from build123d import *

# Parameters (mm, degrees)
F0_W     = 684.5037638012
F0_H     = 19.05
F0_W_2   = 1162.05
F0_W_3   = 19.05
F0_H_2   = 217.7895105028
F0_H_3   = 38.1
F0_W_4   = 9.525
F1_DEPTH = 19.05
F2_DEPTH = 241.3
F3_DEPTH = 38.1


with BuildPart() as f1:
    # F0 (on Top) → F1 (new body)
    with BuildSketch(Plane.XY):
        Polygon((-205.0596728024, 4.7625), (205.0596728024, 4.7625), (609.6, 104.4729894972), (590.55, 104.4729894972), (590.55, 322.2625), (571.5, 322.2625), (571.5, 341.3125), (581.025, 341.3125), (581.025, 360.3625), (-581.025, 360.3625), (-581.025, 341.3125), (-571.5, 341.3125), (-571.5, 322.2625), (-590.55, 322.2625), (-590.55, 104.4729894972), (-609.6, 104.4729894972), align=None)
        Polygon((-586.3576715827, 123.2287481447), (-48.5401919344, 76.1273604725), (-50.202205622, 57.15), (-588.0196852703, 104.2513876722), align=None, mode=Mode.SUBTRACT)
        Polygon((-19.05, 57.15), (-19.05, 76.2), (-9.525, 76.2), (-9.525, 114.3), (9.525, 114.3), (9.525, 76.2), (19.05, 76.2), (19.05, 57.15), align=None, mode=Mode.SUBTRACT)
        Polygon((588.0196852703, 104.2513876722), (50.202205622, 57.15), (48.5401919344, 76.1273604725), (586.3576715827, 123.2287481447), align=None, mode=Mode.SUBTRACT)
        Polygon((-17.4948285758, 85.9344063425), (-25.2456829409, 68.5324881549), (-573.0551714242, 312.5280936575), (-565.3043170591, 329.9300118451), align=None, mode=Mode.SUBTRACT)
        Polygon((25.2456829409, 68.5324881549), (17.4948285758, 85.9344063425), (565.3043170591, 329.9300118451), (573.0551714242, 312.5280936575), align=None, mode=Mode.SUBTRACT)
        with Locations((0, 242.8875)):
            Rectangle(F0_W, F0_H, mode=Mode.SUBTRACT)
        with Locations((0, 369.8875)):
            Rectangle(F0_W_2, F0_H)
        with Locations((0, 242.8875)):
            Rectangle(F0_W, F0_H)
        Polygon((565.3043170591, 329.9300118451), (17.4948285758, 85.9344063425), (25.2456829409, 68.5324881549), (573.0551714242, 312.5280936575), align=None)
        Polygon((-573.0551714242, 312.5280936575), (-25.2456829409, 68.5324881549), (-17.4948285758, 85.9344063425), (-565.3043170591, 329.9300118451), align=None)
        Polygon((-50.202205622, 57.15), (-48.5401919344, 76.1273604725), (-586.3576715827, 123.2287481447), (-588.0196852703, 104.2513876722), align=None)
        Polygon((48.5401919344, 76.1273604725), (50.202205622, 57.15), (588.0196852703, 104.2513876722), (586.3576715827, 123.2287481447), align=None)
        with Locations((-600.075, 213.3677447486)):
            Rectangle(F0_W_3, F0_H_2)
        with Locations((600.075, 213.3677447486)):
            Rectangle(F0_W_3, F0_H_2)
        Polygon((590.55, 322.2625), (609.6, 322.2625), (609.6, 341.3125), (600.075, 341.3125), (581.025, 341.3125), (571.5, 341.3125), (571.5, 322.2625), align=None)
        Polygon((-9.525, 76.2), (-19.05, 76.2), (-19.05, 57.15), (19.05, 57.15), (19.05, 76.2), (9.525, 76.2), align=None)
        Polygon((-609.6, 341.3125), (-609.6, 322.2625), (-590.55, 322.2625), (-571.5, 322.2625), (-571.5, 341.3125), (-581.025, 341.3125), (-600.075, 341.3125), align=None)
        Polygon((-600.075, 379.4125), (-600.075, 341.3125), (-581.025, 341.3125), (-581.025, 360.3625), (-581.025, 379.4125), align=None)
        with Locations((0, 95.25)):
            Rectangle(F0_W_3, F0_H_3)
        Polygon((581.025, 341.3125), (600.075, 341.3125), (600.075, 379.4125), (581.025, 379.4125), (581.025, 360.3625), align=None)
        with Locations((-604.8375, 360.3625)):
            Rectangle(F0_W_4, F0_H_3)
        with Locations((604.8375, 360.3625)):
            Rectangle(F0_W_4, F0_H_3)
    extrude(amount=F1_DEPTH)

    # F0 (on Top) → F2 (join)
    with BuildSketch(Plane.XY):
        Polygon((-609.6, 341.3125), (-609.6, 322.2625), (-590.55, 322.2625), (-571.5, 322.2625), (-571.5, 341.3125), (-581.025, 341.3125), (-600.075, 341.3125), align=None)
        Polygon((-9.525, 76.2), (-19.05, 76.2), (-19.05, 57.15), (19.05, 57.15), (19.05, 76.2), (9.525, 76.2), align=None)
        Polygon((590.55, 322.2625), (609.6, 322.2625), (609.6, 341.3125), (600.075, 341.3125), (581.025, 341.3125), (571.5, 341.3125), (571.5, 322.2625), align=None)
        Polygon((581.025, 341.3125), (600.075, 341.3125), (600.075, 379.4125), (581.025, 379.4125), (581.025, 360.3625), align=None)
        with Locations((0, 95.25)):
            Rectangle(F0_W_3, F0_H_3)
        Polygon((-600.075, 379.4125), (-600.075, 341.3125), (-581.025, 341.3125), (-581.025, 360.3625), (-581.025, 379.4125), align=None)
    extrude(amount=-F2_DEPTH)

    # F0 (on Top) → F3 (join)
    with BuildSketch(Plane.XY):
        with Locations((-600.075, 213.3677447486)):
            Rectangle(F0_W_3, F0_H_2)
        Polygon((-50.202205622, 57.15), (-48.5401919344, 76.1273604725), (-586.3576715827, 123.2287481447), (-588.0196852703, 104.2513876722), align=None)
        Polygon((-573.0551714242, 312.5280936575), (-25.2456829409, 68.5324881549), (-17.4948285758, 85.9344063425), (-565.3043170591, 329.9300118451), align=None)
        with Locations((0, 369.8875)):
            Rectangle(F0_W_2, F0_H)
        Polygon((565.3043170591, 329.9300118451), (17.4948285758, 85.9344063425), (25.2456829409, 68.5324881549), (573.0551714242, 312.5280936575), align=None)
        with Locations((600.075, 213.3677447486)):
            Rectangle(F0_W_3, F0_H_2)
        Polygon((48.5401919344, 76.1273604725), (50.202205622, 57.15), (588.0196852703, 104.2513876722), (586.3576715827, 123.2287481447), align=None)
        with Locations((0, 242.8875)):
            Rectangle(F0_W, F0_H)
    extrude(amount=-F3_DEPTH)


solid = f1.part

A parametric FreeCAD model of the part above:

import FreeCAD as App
import Part
import Sketcher
Q = App.Units.Quantity


def add_polygon(sketch, points):
    """Adds a closed chain of lines whose ends are joined by coincident constraints."""
    first, n = sketch.GeometryCount, len(points)
    for a, b in zip(points, points[1:] + points[:1]):
        sketch.addGeometry(Part.LineSegment(App.Vector(*a, 0), App.Vector(*b, 0)), False)
    for i in range(n):
        sketch.addConstraint(Sketcher.Constraint("Coincident", first + i, 2, first + (i + 1) % n, 1))

doc = App.newDocument("Part")
body = doc.addObject("PartDesign::Body", "Body")

sketch1 = body.newObject("Sketcher::SketchObject", "Sketch")
sketch1.AttachmentSupport = (doc.getObject("XY_Plane"), [""])
sketch1.MapMode = "FlatFace"
add_polygon(sketch1, [(-205, 5), (205, 5), (610, 104), (610, 379), (-610, 379), (-610, 104)])
sketch1.addConstraint([
    Sketcher.Constraint("Horizontal", 0),
    Sketcher.Constraint("Vertical", 2),
    Sketcher.Constraint("Horizontal", 3),
    Sketcher.Constraint("Vertical", 4),
    Sketcher.Constraint("Symmetric", 1, 2, 4, 2, -2),
    Sketcher.Constraint("Equal", 1, 5),
    Sketcher.Constraint("DistanceX", 3, 2, 3, 1, Q("48 in")),
    Sketcher.Constraint("DistanceY", 0, 2, 2, 2, Q("14.75 in")),
    Sketcher.Constraint("DistanceY", -1, 1, 0, 2, Q("0.1875 in")),
    Sketcher.Constraint("DistanceY", 2, 1, 2, 2, 274.939511),
    Sketcher.Constraint("DistanceX", 0, 1, 0, 2, 410.119346),
])
pad1 = body.newObject("PartDesign::Pad", "Pad")
pad1.Profile = sketch1
pad1.Length = Q("0.75 in")

sketch2 = body.newObject("Sketcher::SketchObject", "Sketch001")
sketch2.AttachmentSupport = (doc.getObject("XY_Plane"), [""])
sketch2.MapMode = "FlatFace"
add_polygon(sketch2, [(-610, 341), (-610, 322), (-572, 322), (-572, 341), (-581, 341), (-581, 379), (-600, 379), (-600, 341)])
add_polygon(sketch2, [(-19, 76), (-19, 57), (19, 57), (19, 76), (10, 76), (10, 114), (-10, 114), (-10, 76)])
add_polygon(sketch2, [(610, 322), (610, 341), (600, 341), (600, 379), (581, 379), (581, 341), (572, 341), (572, 322)])
sketch2.addConstraint([
    Sketcher.Constraint("Vertical", 0),
    Sketcher.Constraint("Horizontal", 1),
    Sketcher.Constraint("Vertical", 2),
    Sketcher.Constraint("Horizontal", 3),
    Sketcher.Constraint("Vertical", 4),
    Sketcher.Constraint("Horizontal", 5),
    Sketcher.Constraint("Vertical", 6),
    Sketcher.Constraint("Horizontal", 7),
    Sketcher.Constraint("Vertical", 8),
    Sketcher.Constraint("Horizontal", 9),
    Sketcher.Constraint("Vertical", 10),
    Sketcher.Constraint("Horizontal", 11),
    Sketcher.Constraint("Vertical", 12),
    Sketcher.Constraint("Horizontal", 13),
    Sketcher.Constraint("Vertical", 14),
    Sketcher.Constraint("Horizontal", 15),
    Sketcher.Constraint("Vertical", 16),
    Sketcher.Constraint("Horizontal", 17),
    Sketcher.Constraint("Vertical", 18),
    Sketcher.Constraint("Horizontal", 19),
    Sketcher.Constraint("Vertical", 20),
    Sketcher.Constraint("Horizontal", 21),
    Sketcher.Constraint("Vertical", 22),
    Sketcher.Constraint("Horizontal", 23),
    Sketcher.Constraint("Symmetric", 11, 2, 14, 2, -2),
    Sketcher.Constraint("Symmetric", 7, 2, 16, 2, -2),
    Sketcher.Constraint("Symmetric", 5, 2, 18, 2, -2),
    Sketcher.Constraint("Symmetric", 3, 2, 20, 2, -2),
    Sketcher.Constraint("Symmetric", 1, 2, 22, 2, -2),
    Sketcher.Constraint("Horizontal", 3, 2, 6, 2),
    Sketcher.Constraint("Equal", 3, 7),
    Sketcher.Constraint("Equal", 1, 9),
    Sketcher.Constraint("Equal", 7, 11),
    Sketcher.Constraint("Equal", 5, 13),
    Sketcher.Constraint("Equal", 19, 0),
    Sketcher.Constraint("Equal", 23, 4),
    Sketcher.Constraint("Equal", 2, 8),
    Sketcher.Constraint("Equal", 6, 12),
    Sketcher.Constraint("DistanceX", 1, 1, 1, 2, Q("1.5 in")),
    Sketcher.Constraint("DistanceX", 0, 2, -1, 1, Q("24 in")),
    Sketcher.Constraint("DistanceY", -1, 1, 10, 2, Q("3 in")),
    Sketcher.Constraint("DistanceX", 5, 2, 5, 1, Q("0.75 in")),
    Sketcher.Constraint("DistanceY", -1, 1, 0, 2, Q("12.6875 in")),
])
pad2 = body.newObject("PartDesign::Pad", "Pad001")
pad2.Profile = sketch2
pad2.Length = Q("9.5 in")
pad2.Reversed = True

sketch3 = body.newObject("Sketcher::SketchObject", "Sketch002")
sketch3.AttachmentSupport = (doc.getObject("XY_Plane"), [""])
sketch3.MapMode = "FlatFace"
add_polygon(sketch3, [(-610, 322), (-610, 104), (-591, 104), (-591, 322)])
add_polygon(sketch3, [(-50, 57), (-49, 76), (-586, 123), (-588, 104)])
add_polygon(sketch3, [(-573, 313), (-25, 69), (-17, 86), (-565, 330)])
add_polygon(sketch3, [(-581, 379), (-581, 360), (581, 360), (581, 379)])
add_polygon(sketch3, [(565, 330), (17, 86), (25, 69), (573, 313)])
add_polygon(sketch3, [(591, 322), (591, 104), (610, 104), (610, 322)])
add_polygon(sketch3, [(49, 76), (50, 57), (588, 104), (586, 123)])
add_polygon(sketch3, [(-342, 252), (-342, 233), (342, 233), (342, 252)])
sketch3.addConstraint([
    Sketcher.Constraint("Vertical", 0),
    Sketcher.Constraint("Horizontal", 1),
    Sketcher.Constraint("Vertical", 2),
    Sketcher.Constraint("Horizontal", 3),
    Sketcher.Constraint("Vertical", 12),
    Sketcher.Constraint("Horizontal", 13),
    Sketcher.Constraint("Vertical", 14),
    Sketcher.Constraint("Horizontal", 15),
    Sketcher.Constraint("Vertical", 20),
    Sketcher.Constraint("Horizontal", 21),
    Sketcher.Constraint("Vertical", 22),
    Sketcher.Constraint("Horizontal", 23),
    Sketcher.Constraint("Vertical", 28),
    Sketcher.Constraint("Horizontal", 29),
    Sketcher.Constraint("Vertical", 30),
    Sketcher.Constraint("Horizontal", 31),
    Sketcher.Constraint("Symmetric", 9, 2, 16, 2, -2),
    Sketcher.Constraint("Symmetric", 8, 2, 17, 2, -2),
    Sketcher.Constraint("Symmetric", 11, 2, 18, 2, -2),
    Sketcher.Constraint("Symmetric", 10, 2, 19, 2, -2),
    Sketcher.Constraint("Symmetric", 1, 2, 20, 2, -2),
    Sketcher.Constraint("Symmetric", 3, 2, 22, 2, -2),
    Sketcher.Constraint("Symmetric", 7, 2, 24, 2, -2),
    Sketcher.Constraint("Symmetric", 6, 2, 25, 2, -2),
    Sketcher.Constraint("Symmetric", 5, 2, 26, 2, -2),
    Sketcher.Constraint("Symmetric", 4, 2, 27, 2, -2),
    Sketcher.Constraint("Perpendicular", 4, 5),
    Sketcher.Constraint("Perpendicular", 5, 6),
    Sketcher.Constraint("Perpendicular", 6, 7),
    Sketcher.Constraint("Perpendicular", 8, 9),
    Sketcher.Constraint("Perpendicular", 9, 10),
    Sketcher.Constraint("Perpendicular", 10, 11),
    Sketcher.Constraint("Equal", 23, 12),
    Sketcher.Constraint("Equal", 14, 28),
    Sketcher.Constraint("Equal", 6, 9),
    Sketcher.Constraint("DistanceX", 0, 2, -1, 1, Q("24 in")),
    Sketcher.Constraint("DistanceY", 28, 2, 12, 2, Q("5 in")),
    Sketcher.Constraint("DistanceX", 1, 1, 1, 2, Q("0.75 in")),
    Sketcher.Constraint("DistanceX", 13, 1, 13, 2, Q("45.75 in")),
    Sketcher.Constraint("DistanceY", 2, 2, 12, 2, Q("1.5 in")),
    Sketcher.Constraint("Distance", 4, Q("0.75 in")),
    Sketcher.Constraint("DistanceY", -1, 1, 7, 2, Q("2.25 in")),
    Sketcher.Constraint("DistanceX", 9, 2, 18, 2, Q("23.25 in")),
    Sketcher.Constraint("DistanceY", -1, 1, 2, 2, Q("12.6875 in")),
    Sketcher.Constraint("DistanceX", 12, 2, -1, 1, Q("22.875 in")),
    Sketcher.Constraint("DistanceY", 0, 2, 0, 1, 217.789511),
    Sketcher.Constraint("DistanceY", 6, 2, 1, 2, 0.221602),
    Sketcher.Constraint("DistanceY", 8, 2, 6, 2, 35.7189),
    Sketcher.Constraint("DistanceX", 5, 2, 11, 2, 13.3025),
    Sketcher.Constraint("Distance", 5, 539.87608),
    Sketcher.Constraint("Distance", 8, 599.69083),
    Sketcher.Constraint("DistanceX", 29, 1, 29, 2, 684.503764),
    Sketcher.Constraint("DistanceX", 4, 2, -1, 1, 48.540192),
    Sketcher.Constraint("DistanceX", 28, 2, -1, 1, 342.251882),
])
pad3 = body.newObject("PartDesign::Pad", "Pad002")
pad3.Profile = sketch3
pad3.Length = Q("1.5 in")
pad3.Reversed = True

doc.recompute()
